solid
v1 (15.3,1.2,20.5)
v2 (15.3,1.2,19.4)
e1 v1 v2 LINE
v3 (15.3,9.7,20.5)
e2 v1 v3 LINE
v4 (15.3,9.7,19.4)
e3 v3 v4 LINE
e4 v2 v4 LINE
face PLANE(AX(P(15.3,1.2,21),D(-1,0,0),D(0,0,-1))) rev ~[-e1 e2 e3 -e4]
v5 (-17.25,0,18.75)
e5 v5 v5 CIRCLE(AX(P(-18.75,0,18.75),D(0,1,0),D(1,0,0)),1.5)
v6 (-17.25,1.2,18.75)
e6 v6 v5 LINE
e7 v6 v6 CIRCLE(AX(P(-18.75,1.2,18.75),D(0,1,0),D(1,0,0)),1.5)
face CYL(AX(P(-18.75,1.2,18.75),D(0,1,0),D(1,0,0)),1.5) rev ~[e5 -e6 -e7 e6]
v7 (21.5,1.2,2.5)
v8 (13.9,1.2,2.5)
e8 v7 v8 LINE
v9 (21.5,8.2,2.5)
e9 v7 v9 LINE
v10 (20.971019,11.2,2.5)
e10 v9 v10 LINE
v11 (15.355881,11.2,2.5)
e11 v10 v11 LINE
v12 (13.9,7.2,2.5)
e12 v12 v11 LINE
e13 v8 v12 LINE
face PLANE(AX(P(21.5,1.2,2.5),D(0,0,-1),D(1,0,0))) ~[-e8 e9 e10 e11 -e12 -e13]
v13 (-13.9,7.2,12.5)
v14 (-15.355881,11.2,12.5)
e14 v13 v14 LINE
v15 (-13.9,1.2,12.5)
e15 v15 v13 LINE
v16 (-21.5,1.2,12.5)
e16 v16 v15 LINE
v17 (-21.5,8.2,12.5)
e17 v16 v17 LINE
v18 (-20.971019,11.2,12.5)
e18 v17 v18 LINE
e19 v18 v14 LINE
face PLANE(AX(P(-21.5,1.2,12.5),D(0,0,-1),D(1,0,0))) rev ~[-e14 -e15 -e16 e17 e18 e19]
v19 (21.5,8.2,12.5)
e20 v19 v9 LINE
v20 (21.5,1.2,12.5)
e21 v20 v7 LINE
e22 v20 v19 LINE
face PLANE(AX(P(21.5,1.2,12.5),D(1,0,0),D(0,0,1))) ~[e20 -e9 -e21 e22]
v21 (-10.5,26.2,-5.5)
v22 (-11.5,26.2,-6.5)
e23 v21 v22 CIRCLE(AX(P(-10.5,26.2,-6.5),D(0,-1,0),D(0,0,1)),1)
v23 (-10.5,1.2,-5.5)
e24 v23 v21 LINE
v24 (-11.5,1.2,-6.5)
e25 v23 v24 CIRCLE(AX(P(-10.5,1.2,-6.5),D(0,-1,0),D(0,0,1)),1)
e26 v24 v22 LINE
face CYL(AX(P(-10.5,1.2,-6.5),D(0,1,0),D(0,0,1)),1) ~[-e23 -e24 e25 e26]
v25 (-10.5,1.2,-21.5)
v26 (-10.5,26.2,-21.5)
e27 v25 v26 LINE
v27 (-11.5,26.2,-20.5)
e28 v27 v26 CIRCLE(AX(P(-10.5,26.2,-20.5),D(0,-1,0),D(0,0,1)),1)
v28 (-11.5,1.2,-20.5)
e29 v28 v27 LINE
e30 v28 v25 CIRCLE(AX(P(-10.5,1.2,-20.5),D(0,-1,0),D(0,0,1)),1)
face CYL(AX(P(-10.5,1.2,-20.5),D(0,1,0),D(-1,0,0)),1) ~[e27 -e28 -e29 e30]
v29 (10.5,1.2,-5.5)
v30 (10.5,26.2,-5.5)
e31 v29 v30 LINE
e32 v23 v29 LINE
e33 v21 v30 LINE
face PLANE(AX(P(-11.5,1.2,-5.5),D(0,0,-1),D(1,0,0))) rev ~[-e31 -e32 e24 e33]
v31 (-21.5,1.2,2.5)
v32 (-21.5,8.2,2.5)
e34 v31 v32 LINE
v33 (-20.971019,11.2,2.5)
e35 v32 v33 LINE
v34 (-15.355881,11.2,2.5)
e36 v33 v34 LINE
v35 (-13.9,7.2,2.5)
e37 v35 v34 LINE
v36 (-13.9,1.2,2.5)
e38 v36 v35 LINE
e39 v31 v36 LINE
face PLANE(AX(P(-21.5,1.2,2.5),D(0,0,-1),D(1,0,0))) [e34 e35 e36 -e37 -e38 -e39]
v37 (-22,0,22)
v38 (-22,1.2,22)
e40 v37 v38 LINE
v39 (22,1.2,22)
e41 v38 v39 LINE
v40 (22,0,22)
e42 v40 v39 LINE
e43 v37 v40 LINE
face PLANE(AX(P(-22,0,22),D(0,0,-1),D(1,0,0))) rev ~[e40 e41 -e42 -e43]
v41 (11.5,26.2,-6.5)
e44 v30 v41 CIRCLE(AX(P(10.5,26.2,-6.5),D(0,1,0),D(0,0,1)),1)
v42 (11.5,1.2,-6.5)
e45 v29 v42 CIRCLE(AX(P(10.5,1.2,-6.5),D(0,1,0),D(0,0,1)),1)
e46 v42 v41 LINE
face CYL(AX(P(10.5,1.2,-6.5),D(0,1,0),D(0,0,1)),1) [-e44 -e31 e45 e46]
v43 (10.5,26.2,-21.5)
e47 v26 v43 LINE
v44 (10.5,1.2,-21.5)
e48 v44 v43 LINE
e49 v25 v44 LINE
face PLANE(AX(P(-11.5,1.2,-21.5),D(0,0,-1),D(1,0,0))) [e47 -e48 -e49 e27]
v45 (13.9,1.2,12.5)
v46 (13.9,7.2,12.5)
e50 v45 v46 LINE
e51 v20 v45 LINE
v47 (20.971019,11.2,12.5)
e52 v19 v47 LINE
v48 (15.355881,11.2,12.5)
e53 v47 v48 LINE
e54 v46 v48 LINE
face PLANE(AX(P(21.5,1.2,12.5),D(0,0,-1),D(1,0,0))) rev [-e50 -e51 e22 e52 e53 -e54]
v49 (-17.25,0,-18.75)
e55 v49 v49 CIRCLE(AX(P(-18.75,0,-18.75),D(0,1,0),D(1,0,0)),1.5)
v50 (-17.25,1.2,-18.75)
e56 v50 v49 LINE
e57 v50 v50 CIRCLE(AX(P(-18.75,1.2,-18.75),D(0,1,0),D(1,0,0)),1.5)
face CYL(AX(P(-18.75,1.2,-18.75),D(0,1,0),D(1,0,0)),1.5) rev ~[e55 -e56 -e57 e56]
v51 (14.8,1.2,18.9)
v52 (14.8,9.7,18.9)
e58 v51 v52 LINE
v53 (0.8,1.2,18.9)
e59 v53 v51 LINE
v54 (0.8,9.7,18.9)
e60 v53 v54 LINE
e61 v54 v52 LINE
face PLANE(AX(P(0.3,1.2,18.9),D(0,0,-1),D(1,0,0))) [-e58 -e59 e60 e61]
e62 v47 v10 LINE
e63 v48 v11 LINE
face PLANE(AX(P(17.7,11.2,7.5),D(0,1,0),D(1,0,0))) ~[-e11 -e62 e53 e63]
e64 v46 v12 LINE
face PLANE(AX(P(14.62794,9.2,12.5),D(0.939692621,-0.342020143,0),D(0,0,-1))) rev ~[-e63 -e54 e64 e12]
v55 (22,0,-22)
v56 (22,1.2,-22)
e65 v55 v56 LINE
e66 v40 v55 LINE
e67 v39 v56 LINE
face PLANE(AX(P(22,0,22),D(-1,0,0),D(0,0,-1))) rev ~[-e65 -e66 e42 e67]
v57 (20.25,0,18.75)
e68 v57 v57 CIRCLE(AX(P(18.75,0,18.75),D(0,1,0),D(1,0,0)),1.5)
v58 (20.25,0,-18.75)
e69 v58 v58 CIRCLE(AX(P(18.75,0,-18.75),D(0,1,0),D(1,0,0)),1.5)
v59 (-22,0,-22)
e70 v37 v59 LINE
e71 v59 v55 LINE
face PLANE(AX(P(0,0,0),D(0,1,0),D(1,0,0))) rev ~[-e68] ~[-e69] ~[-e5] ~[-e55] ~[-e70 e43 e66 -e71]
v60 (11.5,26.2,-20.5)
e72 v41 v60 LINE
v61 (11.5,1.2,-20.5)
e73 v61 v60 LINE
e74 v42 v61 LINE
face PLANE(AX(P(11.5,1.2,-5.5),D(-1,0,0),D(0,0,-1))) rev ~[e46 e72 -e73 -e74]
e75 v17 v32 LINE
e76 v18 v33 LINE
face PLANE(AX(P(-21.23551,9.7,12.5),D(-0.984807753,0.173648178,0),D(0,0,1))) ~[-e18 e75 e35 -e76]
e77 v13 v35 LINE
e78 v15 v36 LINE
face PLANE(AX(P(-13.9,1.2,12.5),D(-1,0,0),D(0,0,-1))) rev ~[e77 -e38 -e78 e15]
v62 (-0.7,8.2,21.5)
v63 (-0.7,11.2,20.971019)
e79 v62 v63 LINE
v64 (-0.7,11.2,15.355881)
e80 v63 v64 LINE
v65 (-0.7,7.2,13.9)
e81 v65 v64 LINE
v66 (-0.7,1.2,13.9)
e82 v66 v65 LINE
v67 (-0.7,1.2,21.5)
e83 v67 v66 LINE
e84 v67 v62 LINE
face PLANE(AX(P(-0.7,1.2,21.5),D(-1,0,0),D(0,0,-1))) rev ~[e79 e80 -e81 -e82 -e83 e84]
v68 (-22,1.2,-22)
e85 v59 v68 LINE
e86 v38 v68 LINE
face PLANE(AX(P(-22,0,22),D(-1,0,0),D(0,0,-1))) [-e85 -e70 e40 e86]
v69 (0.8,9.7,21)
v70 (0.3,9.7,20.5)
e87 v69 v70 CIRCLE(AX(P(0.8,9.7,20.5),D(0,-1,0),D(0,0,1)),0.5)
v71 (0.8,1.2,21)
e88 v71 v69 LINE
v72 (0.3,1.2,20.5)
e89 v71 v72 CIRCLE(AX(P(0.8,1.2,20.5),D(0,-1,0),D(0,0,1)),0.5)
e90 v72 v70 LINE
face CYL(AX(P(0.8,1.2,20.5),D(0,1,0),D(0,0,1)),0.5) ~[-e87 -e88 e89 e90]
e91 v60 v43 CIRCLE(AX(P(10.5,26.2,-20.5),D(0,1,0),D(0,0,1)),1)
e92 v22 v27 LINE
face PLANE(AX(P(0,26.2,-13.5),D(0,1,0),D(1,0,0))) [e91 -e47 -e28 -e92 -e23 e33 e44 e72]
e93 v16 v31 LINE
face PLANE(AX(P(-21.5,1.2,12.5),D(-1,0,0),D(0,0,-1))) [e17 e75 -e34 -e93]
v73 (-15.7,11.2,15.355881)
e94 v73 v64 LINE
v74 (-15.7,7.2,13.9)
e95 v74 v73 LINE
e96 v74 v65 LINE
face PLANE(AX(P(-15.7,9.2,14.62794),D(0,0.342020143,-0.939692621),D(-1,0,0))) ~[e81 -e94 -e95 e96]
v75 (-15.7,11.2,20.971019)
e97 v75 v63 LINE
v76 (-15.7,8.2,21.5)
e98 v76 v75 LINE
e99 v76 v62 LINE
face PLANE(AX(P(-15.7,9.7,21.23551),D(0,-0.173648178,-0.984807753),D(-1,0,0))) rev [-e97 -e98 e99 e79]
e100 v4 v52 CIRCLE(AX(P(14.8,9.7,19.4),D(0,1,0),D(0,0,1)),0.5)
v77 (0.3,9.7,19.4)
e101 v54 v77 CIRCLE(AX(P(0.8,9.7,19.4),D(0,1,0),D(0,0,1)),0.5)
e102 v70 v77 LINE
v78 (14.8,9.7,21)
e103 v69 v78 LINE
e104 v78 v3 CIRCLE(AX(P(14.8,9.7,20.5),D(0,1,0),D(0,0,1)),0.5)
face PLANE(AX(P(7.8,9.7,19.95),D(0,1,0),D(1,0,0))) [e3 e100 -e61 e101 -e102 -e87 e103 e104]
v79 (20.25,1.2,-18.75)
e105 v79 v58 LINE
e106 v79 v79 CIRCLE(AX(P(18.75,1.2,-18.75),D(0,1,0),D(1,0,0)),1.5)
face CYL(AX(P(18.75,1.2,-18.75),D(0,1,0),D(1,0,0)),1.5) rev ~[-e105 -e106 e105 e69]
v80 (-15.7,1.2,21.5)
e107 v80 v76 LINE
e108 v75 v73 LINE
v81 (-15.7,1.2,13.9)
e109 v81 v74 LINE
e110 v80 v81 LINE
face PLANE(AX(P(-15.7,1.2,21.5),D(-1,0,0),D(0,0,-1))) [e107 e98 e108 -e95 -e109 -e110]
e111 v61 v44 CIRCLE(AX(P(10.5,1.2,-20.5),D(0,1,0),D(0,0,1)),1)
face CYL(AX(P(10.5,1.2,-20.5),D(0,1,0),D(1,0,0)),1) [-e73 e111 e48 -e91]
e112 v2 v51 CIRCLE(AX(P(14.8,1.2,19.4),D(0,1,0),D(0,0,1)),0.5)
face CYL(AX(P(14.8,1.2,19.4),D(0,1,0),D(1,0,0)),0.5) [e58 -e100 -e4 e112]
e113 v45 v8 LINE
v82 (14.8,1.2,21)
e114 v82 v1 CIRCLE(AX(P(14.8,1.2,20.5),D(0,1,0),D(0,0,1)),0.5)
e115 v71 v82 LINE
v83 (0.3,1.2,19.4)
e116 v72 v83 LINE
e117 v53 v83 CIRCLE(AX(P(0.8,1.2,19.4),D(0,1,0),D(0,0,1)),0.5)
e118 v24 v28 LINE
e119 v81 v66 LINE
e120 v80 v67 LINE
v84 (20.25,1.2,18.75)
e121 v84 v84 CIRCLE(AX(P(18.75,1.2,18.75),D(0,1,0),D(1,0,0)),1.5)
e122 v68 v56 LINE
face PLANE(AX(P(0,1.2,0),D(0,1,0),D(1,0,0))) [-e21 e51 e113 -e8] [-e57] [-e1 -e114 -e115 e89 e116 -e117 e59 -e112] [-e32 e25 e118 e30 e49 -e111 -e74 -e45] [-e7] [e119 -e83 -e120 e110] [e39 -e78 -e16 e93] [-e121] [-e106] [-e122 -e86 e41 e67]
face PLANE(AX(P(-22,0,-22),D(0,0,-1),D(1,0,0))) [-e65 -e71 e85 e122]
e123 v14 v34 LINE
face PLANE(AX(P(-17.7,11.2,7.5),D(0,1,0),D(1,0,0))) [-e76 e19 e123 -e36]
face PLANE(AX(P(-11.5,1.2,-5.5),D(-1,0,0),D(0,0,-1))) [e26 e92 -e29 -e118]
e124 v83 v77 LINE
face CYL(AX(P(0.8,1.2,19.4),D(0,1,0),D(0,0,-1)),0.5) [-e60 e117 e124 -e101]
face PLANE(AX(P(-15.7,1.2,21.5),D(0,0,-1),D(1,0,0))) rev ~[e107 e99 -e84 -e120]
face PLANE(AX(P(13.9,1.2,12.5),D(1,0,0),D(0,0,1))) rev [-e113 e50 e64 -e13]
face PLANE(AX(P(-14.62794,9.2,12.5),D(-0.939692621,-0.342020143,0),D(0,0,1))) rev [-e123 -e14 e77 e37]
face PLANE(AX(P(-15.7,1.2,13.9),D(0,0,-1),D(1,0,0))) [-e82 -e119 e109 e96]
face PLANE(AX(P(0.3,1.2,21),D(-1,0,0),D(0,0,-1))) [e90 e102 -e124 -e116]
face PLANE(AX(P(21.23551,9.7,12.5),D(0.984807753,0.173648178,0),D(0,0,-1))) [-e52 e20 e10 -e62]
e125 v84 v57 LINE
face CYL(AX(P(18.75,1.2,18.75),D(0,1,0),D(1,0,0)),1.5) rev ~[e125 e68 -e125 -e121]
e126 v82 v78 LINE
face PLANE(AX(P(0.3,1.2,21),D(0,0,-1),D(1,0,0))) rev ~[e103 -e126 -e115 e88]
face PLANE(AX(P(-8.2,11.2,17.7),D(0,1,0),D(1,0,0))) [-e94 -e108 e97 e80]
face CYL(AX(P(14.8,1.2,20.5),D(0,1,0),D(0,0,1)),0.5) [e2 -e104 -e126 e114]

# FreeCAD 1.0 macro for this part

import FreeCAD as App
import Part
import Sketcher

V = App.Vector


def edges_at(feature, points):
    """Names of the edges that pass closest to the given points."""
    edges = feature.Shape.Edges
    near = lambda p: min(range(len(edges)), key=lambda i: edges[i].distToShape(Part.Vertex(*p))[0])
    return sorted({f"Edge{near(p) + 1}" for p in points})

doc = App.newDocument("Part")
body = doc.addObject("PartDesign::Body", "Body")

# Sketch on XZ plane
sketch1 = doc.addObject("Sketcher::SketchObject", "Sketch")
body.addObject(sketch1)
sketch1.AttachmentSupport = (doc.XZ_Plane, [""])
sketch1.MapMode = "FlatFace"
sketch1.addGeometry(Part.LineSegment(V(-22, -22, 0), V(-22, 22, 0)), False)
sketch1.addGeometry(Part.LineSegment(V(-22, 22, 0), V(22, 22, 0)), False)
sketch1.addGeometry(Part.LineSegment(V(22, 22, 0), V(22, -22, 0)), False)
sketch1.addGeometry(Part.LineSegment(V(22, -22, 0), V(-22, -22, 0)), False)
sketch1.addConstraint(Sketcher.Constraint("Coincident", 0, 2, 1, 1))
sketch1.addConstraint(Sketcher.Constraint("Coincident", 1, 2, 2, 1))
sketch1.addConstraint(Sketcher.Constraint("Coincident", 2, 2, 3, 1))
sketch1.addConstraint(Sketcher.Constraint("Coincident", 3, 2, 0, 1))
sketch1.addConstraint(Sketcher.Constraint("Vertical", 0))
sketch1.addConstraint(Sketcher.Constraint("Horizontal", 1))
sketch1.addConstraint(Sketcher.Constraint("Vertical", 2))
sketch1.addConstraint(Sketcher.Constraint("Horizontal", 3))
sketch1.addConstraint(Sketcher.Constraint("Symmetric", 0, 2, 2, 2, -1, 1))
sketch1.addConstraint(Sketcher.Constraint("Equal", 3, 0))
sketch1.addConstraint(Sketcher.Constraint("DistanceX", 1, 1, 1, 2, 44.0))
pad1 = doc.addObject("PartDesign::Pad", "Pad")
body.addObject(pad1)
pad1.Profile = sketch1
pad1.Length = 1.2
pad1.Reversed = True

# Sketch on XZ plane
sketch2 = doc.addObject("Sketcher::SketchObject", "Sketch001")
body.addObject(sketch2)
sketch2.AttachmentSupport = (doc.XZ_Plane, [""])
sketch2.MapMode = "FlatFace"
sketch2.AttachmentOffset = App.Placement(V(0, 0, -1.2), App.Rotation())
sketch2.addGeometry(Part.LineSegment(V(-12, -22, 0), V(-12, -6, 0)), False)
sketch2.addGeometry(Part.LineSegment(V(-12, -6, 0), V(12, -6, 0)), False)
sketch2.addGeometry(Part.LineSegment(V(12, -6, 0), V(12, -22, 0)), False)
sketch2.addGeometry(Part.LineSegment(V(12, -22, 0), V(-12, -22, 0)), False)
sketch2.addConstraint(Sketcher.Constraint("Coincident", 0, 2, 1, 1))
sketch2.addConstraint(Sketcher.Constraint("Coincident", 1, 2, 2, 1))
sketch2.addConstraint(Sketcher.Constraint("Coincident", 2, 2, 3, 1))
sketch2.addConstraint(Sketcher.Constraint("Coincident", 3, 2, 0, 1))
sketch2.addConstraint(Sketcher.Constraint("Vertical", 0))
sketch2.addConstraint(Sketcher.Constraint("Horizontal", 1))
sketch2.addConstraint(Sketcher.Constraint("Vertical", 2))
sketch2.addConstraint(Sketcher.Constraint("Horizontal", 3))
sketch2.addConstraint(Sketcher.Constraint("DistanceX", 1, 1, 1, 2, 23.0))
sketch2.addConstraint(Sketcher.Constraint("DistanceY", 0, 1, 0, 2, 16.0))
sketch2.addConstraint(Sketcher.Constraint("DistanceX", 0, 2, -1, 1, 11.5))
sketch2.addConstraint(Sketcher.Constraint("DistanceY", 0, 2, -1, 1, 5.5))
pad2 = doc.addObject("PartDesign::Pad", "Pad001")
body.addObject(pad2)
pad2.Profile = sketch2
pad2.Length = 25
pad2.Reversed = True

# Sketch on XZ plane
sketch3 = doc.addObject("Sketcher::SketchObject", "Sketch002")
body.addObject(sketch3)
sketch3.AttachmentSupport = (doc.XZ_Plane, [""])
sketch3.MapMode = "FlatFace"
sketch3.AttachmentOffset = App.Placement(V(0, 0, -1.2), App.Rotation())
sketch3.addGeometry(Part.LineSegment(V(-22, 2, 0), V(-22, 12, 0)), False)
sketch3.addGeometry(Part.LineSegment(V(-22, 12, 0), V(-14, 12, 0)), False)
sketch3.addGeometry(Part.LineSegment(V(-14, 12, 0), V(-14, 2, 0)), False)
sketch3.addGeometry(Part.LineSegment(V(-14, 2, 0), V(-22, 2, 0)), False)
sketch3.addConstraint(Sketcher.Constraint("Coincident", 0, 2, 1, 1))
sketch3.addConstraint(Sketcher.Constraint("Coincident", 1, 2, 2, 1))
sketch3.addConstraint(Sketcher.Constraint("Coincident", 2, 2, 3, 1))
sketch3.addConstraint(Sketcher.Constraint("Coincident", 3, 2, 0, 1))
sketch3.addConstraint(Sketcher.Constraint("Vertical", 0))
sketch3.addConstraint(Sketcher.Constraint("Horizontal", 1))
sketch3.addConstraint(Sketcher.Constraint("Vertical", 2))
sketch3.addConstraint(Sketcher.Constraint("Horizontal", 3))
sketch3.addConstraint(Sketcher.Constraint("DistanceY", 0, 1, 0, 2, 10.0))
sketch3.addConstraint(Sketcher.Constraint("DistanceX", 1, 1, 1, 2, 7.6))
sketch3.addConstraint(Sketcher.Constraint("DistanceX", 0, 2, -1, 1, 21.5))
sketch3.addConstraint(Sketcher.Constraint("DistanceY", -1, 1, 0, 2, 12.5))
pad3 = doc.addObject("PartDesign::Pad", "Pad002")
body.addObject(pad3)
pad3.Profile = sketch3
pad3.Length = 10
pad3.Reversed = True
doc.recompute()

mirrored = doc.addObject("PartDesign::Mirrored", "Mirrored")
body.addObject(mirrored)
mirrored.Originals = [pad3]
mirrored.MirrorPlane = (doc.YZ_Plane, [""])
body.Tip = mirrored
doc.recompute()

fillet = doc.addObject("PartDesign::Fillet", "Fillet")
body.addObject(fillet)
fillet.Base = (mirrored, edges_at(mirrored, [
    (-11.5, 13.7, -21.5),
    (-11.5, 13.7, -5.5),
    (11.5, 13.7, -5.5),
    (11.5, 13.7, -21.5),
]))
fillet.Radius = 1

# Sketch on XZ plane
sketch4 = doc.addObject("Sketcher::SketchObject", "Sketch003")
body.addObject(sketch4)
sketch4.AttachmentSupport = (doc.XZ_Plane, [""])
sketch4.MapMode = "FlatFace"
sketch4.AttachmentOffset = App.Placement(V(0, 0, -1.2), App.Rotation())
sketch4.addGeometry(Part.LineSegment(V(-16, 14, 0), V(-16, 22, 0)), False)
sketch4.addGeometry(Part.LineSegment(V(-16, 22, 0), V(-1, 22, 0)), False)
sketch4.addGeometry(Part.LineSegment(V(-1, 22, 0), V(-1, 14, 0)), False)
sketch4.addGeometry(Part.LineSegment(V(-1, 14, 0), V(-16, 14, 0)), False)
sketch4.addConstraint(Sketcher.Constraint("Coincident", 0, 2, 1, 1))
sketch4.addConstraint(Sketcher.Constraint("Coincident", 1, 2, 2, 1))
sketch4.addConstraint(Sketcher.Constraint("Coincident", 2, 2, 3, 1))
sketch4.addConstraint(Sketcher.Constraint("Coincident", 3, 2, 0, 1))
sketch4.addConstraint(Sketcher.Constraint("Vertical", 0))
sketch4.addConstraint(Sketcher.Constraint("Horizontal", 1))
sketch4.addConstraint(Sketcher.Constraint("Vertical", 2))
sketch4.addConstraint(Sketcher.Constraint("Horizontal", 3))
sketch4.addConstraint(Sketcher.Constraint("DistanceX", 1, 1, 1, 2, 15.0))
sketch4.addConstraint(Sketcher.Constraint("DistanceY", 0, 1, 0, 2, 7.6))
sketch4.addConstraint(Sketcher.Constraint("DistanceX", 0, 2, -1, 1, 15.7))
sketch4.addConstraint(Sketcher.Constraint("DistanceY", -1, 1, 0, 2, 21.5))
pad4 = doc.addObject("PartDesign::Pad", "Pad003")
body.addObject(pad4)
pad4.Profile = sketch4
pad4.Length = 10
pad4.Reversed = True
doc.recompute()

chamfer = doc.addObject("PartDesign::Chamfer", "Chamfer")
body.addObject(chamfer)
chamfer.Base = (pad4, edges_at(pad4, [(-21.5, 11.2, 7.5)]))
chamfer.ChamferType = "Two distances"
chamfer.Size = 3
chamfer.Size2 = 0.528981
doc.recompute()

chamfer2 = doc.addObject("PartDesign::Chamfer", "Chamfer001")
body.addObject(chamfer2)
chamfer2.Base = (chamfer, edges_at(chamfer, [(21.5, 11.2, 7.5)]))
chamfer2.ChamferType = "Two distances"
chamfer2.Size = 3
chamfer2.Size2 = 0.528981
doc.recompute()

chamfer3 = doc.addObject("PartDesign::Chamfer", "Chamfer002")
body.addObject(chamfer3)
chamfer3.Base = (chamfer2, edges_at(chamfer2, [(-8.2, 11.2, 21.5)]))
chamfer3.ChamferType = "Two distances"
chamfer3.Size = 3
chamfer3.Size2 = 0.528981
doc.recompute()

chamfer4 = doc.addObject("PartDesign::Chamfer", "Chamfer003")
body.addObject(chamfer4)
chamfer4.Base = (chamfer3, edges_at(chamfer3, [(-13.9, 11.2, 7.5)]))
chamfer4.ChamferType = "Two distances"
chamfer4.Size = 4
chamfer4.Size2 = 1.455881
doc.recompute()

chamfer5 = doc.addObject("PartDesign::Chamfer", "Chamfer004")
body.addObject(chamfer5)
chamfer5.Base = (chamfer4, edges_at(chamfer4, [(13.9, 11.2, 7.5)]))
chamfer5.ChamferType = "Two distances"
chamfer5.Size = 4
chamfer5.Size2 = 1.455881
doc.recompute()

chamfer6 = doc.addObject("PartDesign::Chamfer", "Chamfer005")
body.addObject(chamfer6)
chamfer6.Base = (chamfer5, edges_at(chamfer5, [(-8.2, 11.2, 13.9)]))
chamfer6.ChamferType = "Two distances"
chamfer6.Size = 4
chamfer6.Size2 = 1.455881

# Sketch on XZ plane
sketch5 = doc.addObject("Sketcher::SketchObject", "Sketch004")
body.addObject(sketch5)
sketch5.AttachmentSupport = (doc.XZ_Plane, [""])
sketch5.MapMode = "FlatFace"
sketch5.AttachmentOffset = App.Placement(V(0, 0, -1.2), App.Rotation())
sketch5.addGeometry(Part.LineSegment(V(0.3, 18.9, 0), V(0.3, 21, 0)), False)
sketch5.addGeometry(Part.LineSegment(V(0.3, 21, 0), V(15.3, 21, 0)), False)
sketch5.addGeometry(Part.LineSegment(V(15.3, 21, 0), V(15.3, 18.9, 0)), False)
sketch5.addGeometry(Part.LineSegment(V(15.3, 18.9, 0), V(0.3, 18.9, 0)), False)
sketch5.addConstraint(Sketcher.Constraint("Coincident", 0, 2, 1, 1))
sketch5.addConstraint(Sketcher.Constraint("Coincident", 1, 2, 2, 1))
sketch5.addConstraint(Sketcher.Constraint("Coincident", 2, 2, 3, 1))
sketch5.addConstraint(Sketcher.Constraint("Coincident", 3, 2, 0, 1))
sketch5.addConstraint(Sketcher.Constraint("Vertical", 0))
sketch5.addConstraint(Sketcher.Constraint("Horizontal", 1))
sketch5.addConstraint(Sketcher.Constraint("Vertical", 2))
sketch5.addConstraint(Sketcher.Constraint("Horizontal", 3))
sketch5.addConstraint(Sketcher.Constraint("DistanceX", 1, 1, 1, 2, 15.0))
sketch5.addConstraint(Sketcher.Constraint("DistanceY", 0, 1, 0, 2, 2.1))
sketch5.addConstraint(Sketcher.Constraint("DistanceY", -1, 1, 0, 2, 21.0))
sketch5.addConstraint(Sketcher.Constraint("DistanceX", -1, 1, 0, 2, 0.3))
pad5 = doc.addObject("PartDesign::Pad", "Pad004")
body.addObject(pad5)
pad5.Profile = sketch5
pad5.Length = 8.5
pad5.Reversed = True
doc.recompute()

fillet2 = doc.addObject("PartDesign::Fillet", "Fillet001")
body.addObject(fillet2)
fillet2.Base = (pad5, edges_at(pad5, [
    (0.3, 5.45, 18.9),
    (0.3, 5.45, 21),
    (15.3, 5.45, 21),
    (15.3, 5.45, 18.9),
]))
fillet2.Radius = 0.5

# Sketch on XZ plane
sketch6 = doc.addObject("Sketcher::SketchObject", "Sketch005")
body.addObject(sketch6)
sketch6.AttachmentSupport = (doc.XZ_Plane, [""])
sketch6.MapMode = "FlatFace"
sketch6.AttachmentOffset = App.Placement(V(0, 0, -1.2), App.Rotation())
sketch6.addGeometry(Part.Circle(V(-18.8, -18.8, 0), V(0, 0, 1), 1.5), False)
sketch6.addGeometry(Part.Circle(V(18.8, -18.8, 0), V(0, 0, 1), 1.5), False)
sketch6.addGeometry(Part.Circle(V(18.8, 18.8, 0), V(0, 0, 1), 1.5), False)
sketch6.addGeometry(Part.Circle(V(-18.8, 18.8, 0), V(0, 0, 1), 1.5), False)
sketch6.addConstraint(Sketcher.Constraint("Equal", 0, 1))
sketch6.addConstraint(Sketcher.Constraint("Equal", 1, 2))
sketch6.addConstraint(Sketcher.Constraint("Equal", 2, 3))
sketch6.addConstraint(Sketcher.Constraint("Symmetric", 0, 3, 2, 3, -1, 1))
sketch6.addConstraint(Sketcher.Constraint("Symmetric", 1, 3, 3, 3, -1, 1))
sketch6.addConstraint(Sketcher.Constraint("Symmetric", 0, 3, 1, 3, -2))
sketch6.addConstraint(Sketcher.Constraint("Diameter", 0, 3.0))
sketch6.addConstraint(Sketcher.Constraint("DistanceX", 0, 3, 1, 3, 37.5))
sketch6.addConstraint(Sketcher.Constraint("DistanceY", 1, 3, 2, 3, 37.5))
pocket1 = doc.addObject("PartDesign::Pocket", "Pocket")
body.addObject(pocket1)
pocket1.Profile = sketch6
pocket1.Type = "ThroughAll"
pocket1.Reversed = True

doc.recompute()
